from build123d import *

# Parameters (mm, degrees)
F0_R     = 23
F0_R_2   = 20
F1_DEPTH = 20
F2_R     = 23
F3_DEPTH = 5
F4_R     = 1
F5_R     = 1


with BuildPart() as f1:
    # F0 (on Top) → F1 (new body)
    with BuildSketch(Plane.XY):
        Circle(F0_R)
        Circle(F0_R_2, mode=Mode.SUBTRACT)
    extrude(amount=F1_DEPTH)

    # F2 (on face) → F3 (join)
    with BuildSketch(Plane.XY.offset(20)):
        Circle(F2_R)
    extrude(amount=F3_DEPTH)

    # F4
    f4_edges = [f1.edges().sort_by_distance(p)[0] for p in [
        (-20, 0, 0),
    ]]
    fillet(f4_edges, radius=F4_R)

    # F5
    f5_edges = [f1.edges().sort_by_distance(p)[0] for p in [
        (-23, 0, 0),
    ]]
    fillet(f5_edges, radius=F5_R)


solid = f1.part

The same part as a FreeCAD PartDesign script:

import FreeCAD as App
import Part
import Sketcher

V = App.Vector


def edges_at(feature, points):
    """Names of the edges that pass closest to the given points."""
    edges = feature.Shape.Edges
    near = lambda p: min(range(len(edges)), key=lambda i: edges[i].distToShape(Part.Vertex(*p))[0])
    return sorted({f"Edge{near(p) + 1}" for p in points})

doc = App.newDocument("Part")
params = doc.addObject("Spreadsheet::Sheet", "Params")
for row, (alias, value) in enumerate([
    ("sketch1_diameter", "46 mm"),
    ("sketch1_diameter2", "40 mm"),
    ("pad1_length", "20 mm"),
    ("sketch2_diameter", "46 mm"),
    ("pad2_length", "5 mm"),
    ("fillet_radius", "1 mm"),
    ("fillet2_radius", "1 mm"),
], start=1):
    params.set(f"A{row}", alias)
    params.set(f"B{row}", "=" + value)
    params.setAlias(f"B{row}", alias)

body = doc.addObject("PartDesign::Body", "Body")

sketch1 = body.newObject("Sketcher::SketchObject", "Sketch")
sketch1.AttachmentSupport = (doc.getObject("XY_Plane"), [""])
sketch1.MapMode = "FlatFace"
sketch1.addGeometry(Part.Circle(V(0, 0, 0), V(0, 0, 1), 23), False)
sketch1.addGeometry(Part.Circle(V(0, 0, 0), V(0, 0, 1), 20), False)
sketch1.addConstraint(Sketcher.Constraint("Coincident", 0, 3, -1, 1))
sketch1.addConstraint(Sketcher.Constraint("Coincident", 1, 3, -1, 1))
sketch1.addConstraint(Sketcher.Constraint("Diameter", 0, 46.0))
sketch1.addConstraint(Sketcher.Constraint("Diameter", 1, 40.0))
sketch1.setExpression("Constraints[2]", "Params.sketch1_diameter")
sketch1.setExpression("Constraints[3]", "Params.sketch1_diameter2")
pad1 = body.newObject("PartDesign::Pad", "Pad")
pad1.Profile = sketch1
pad1.setExpression("Length", "Params.pad1_length")

sketch2 = body.newObject("Sketcher::SketchObject", "Sketch001")
sketch2.AttachmentSupport = (doc.getObject("XY_Plane"), [""])
sketch2.MapMode = "FlatFace"
sketch2.AttachmentOffset = App.Placement(V(0, 0, 20), App.Rotation())
sketch2.addGeometry(Part.Circle(V(0, 0, 0), V(0, 0, 1), 23), False)
sketch2.addConstraint(Sketcher.Constraint("Coincident", 0, 3, -1, 1))
sketch2.addConstraint(Sketcher.Constraint("Diameter", 0, 46.0))
sketch2.setExpression("Constraints[1]", "Params.sketch2_diameter")
pad2 = body.newObject("PartDesign::Pad", "Pad001")
pad2.Profile = sketch2
pad2.setExpression("Length", "Params.pad2_length")
doc.recompute()

fillet = body.newObject("PartDesign::Fillet", "Fillet")
fillet.Base = (pad2, edges_at(pad2, [(-20, 0, 0)]))
fillet.setExpression("Radius", "Params.fillet_radius")
doc.recompute()

fillet2 = body.newObject("PartDesign::Fillet", "Fillet001")
fillet2.Base = (fillet, edges_at(fillet, [(-23, 0, 0)]))
fillet2.setExpression("Radius", "Params.fillet2_radius")

doc.recompute()
